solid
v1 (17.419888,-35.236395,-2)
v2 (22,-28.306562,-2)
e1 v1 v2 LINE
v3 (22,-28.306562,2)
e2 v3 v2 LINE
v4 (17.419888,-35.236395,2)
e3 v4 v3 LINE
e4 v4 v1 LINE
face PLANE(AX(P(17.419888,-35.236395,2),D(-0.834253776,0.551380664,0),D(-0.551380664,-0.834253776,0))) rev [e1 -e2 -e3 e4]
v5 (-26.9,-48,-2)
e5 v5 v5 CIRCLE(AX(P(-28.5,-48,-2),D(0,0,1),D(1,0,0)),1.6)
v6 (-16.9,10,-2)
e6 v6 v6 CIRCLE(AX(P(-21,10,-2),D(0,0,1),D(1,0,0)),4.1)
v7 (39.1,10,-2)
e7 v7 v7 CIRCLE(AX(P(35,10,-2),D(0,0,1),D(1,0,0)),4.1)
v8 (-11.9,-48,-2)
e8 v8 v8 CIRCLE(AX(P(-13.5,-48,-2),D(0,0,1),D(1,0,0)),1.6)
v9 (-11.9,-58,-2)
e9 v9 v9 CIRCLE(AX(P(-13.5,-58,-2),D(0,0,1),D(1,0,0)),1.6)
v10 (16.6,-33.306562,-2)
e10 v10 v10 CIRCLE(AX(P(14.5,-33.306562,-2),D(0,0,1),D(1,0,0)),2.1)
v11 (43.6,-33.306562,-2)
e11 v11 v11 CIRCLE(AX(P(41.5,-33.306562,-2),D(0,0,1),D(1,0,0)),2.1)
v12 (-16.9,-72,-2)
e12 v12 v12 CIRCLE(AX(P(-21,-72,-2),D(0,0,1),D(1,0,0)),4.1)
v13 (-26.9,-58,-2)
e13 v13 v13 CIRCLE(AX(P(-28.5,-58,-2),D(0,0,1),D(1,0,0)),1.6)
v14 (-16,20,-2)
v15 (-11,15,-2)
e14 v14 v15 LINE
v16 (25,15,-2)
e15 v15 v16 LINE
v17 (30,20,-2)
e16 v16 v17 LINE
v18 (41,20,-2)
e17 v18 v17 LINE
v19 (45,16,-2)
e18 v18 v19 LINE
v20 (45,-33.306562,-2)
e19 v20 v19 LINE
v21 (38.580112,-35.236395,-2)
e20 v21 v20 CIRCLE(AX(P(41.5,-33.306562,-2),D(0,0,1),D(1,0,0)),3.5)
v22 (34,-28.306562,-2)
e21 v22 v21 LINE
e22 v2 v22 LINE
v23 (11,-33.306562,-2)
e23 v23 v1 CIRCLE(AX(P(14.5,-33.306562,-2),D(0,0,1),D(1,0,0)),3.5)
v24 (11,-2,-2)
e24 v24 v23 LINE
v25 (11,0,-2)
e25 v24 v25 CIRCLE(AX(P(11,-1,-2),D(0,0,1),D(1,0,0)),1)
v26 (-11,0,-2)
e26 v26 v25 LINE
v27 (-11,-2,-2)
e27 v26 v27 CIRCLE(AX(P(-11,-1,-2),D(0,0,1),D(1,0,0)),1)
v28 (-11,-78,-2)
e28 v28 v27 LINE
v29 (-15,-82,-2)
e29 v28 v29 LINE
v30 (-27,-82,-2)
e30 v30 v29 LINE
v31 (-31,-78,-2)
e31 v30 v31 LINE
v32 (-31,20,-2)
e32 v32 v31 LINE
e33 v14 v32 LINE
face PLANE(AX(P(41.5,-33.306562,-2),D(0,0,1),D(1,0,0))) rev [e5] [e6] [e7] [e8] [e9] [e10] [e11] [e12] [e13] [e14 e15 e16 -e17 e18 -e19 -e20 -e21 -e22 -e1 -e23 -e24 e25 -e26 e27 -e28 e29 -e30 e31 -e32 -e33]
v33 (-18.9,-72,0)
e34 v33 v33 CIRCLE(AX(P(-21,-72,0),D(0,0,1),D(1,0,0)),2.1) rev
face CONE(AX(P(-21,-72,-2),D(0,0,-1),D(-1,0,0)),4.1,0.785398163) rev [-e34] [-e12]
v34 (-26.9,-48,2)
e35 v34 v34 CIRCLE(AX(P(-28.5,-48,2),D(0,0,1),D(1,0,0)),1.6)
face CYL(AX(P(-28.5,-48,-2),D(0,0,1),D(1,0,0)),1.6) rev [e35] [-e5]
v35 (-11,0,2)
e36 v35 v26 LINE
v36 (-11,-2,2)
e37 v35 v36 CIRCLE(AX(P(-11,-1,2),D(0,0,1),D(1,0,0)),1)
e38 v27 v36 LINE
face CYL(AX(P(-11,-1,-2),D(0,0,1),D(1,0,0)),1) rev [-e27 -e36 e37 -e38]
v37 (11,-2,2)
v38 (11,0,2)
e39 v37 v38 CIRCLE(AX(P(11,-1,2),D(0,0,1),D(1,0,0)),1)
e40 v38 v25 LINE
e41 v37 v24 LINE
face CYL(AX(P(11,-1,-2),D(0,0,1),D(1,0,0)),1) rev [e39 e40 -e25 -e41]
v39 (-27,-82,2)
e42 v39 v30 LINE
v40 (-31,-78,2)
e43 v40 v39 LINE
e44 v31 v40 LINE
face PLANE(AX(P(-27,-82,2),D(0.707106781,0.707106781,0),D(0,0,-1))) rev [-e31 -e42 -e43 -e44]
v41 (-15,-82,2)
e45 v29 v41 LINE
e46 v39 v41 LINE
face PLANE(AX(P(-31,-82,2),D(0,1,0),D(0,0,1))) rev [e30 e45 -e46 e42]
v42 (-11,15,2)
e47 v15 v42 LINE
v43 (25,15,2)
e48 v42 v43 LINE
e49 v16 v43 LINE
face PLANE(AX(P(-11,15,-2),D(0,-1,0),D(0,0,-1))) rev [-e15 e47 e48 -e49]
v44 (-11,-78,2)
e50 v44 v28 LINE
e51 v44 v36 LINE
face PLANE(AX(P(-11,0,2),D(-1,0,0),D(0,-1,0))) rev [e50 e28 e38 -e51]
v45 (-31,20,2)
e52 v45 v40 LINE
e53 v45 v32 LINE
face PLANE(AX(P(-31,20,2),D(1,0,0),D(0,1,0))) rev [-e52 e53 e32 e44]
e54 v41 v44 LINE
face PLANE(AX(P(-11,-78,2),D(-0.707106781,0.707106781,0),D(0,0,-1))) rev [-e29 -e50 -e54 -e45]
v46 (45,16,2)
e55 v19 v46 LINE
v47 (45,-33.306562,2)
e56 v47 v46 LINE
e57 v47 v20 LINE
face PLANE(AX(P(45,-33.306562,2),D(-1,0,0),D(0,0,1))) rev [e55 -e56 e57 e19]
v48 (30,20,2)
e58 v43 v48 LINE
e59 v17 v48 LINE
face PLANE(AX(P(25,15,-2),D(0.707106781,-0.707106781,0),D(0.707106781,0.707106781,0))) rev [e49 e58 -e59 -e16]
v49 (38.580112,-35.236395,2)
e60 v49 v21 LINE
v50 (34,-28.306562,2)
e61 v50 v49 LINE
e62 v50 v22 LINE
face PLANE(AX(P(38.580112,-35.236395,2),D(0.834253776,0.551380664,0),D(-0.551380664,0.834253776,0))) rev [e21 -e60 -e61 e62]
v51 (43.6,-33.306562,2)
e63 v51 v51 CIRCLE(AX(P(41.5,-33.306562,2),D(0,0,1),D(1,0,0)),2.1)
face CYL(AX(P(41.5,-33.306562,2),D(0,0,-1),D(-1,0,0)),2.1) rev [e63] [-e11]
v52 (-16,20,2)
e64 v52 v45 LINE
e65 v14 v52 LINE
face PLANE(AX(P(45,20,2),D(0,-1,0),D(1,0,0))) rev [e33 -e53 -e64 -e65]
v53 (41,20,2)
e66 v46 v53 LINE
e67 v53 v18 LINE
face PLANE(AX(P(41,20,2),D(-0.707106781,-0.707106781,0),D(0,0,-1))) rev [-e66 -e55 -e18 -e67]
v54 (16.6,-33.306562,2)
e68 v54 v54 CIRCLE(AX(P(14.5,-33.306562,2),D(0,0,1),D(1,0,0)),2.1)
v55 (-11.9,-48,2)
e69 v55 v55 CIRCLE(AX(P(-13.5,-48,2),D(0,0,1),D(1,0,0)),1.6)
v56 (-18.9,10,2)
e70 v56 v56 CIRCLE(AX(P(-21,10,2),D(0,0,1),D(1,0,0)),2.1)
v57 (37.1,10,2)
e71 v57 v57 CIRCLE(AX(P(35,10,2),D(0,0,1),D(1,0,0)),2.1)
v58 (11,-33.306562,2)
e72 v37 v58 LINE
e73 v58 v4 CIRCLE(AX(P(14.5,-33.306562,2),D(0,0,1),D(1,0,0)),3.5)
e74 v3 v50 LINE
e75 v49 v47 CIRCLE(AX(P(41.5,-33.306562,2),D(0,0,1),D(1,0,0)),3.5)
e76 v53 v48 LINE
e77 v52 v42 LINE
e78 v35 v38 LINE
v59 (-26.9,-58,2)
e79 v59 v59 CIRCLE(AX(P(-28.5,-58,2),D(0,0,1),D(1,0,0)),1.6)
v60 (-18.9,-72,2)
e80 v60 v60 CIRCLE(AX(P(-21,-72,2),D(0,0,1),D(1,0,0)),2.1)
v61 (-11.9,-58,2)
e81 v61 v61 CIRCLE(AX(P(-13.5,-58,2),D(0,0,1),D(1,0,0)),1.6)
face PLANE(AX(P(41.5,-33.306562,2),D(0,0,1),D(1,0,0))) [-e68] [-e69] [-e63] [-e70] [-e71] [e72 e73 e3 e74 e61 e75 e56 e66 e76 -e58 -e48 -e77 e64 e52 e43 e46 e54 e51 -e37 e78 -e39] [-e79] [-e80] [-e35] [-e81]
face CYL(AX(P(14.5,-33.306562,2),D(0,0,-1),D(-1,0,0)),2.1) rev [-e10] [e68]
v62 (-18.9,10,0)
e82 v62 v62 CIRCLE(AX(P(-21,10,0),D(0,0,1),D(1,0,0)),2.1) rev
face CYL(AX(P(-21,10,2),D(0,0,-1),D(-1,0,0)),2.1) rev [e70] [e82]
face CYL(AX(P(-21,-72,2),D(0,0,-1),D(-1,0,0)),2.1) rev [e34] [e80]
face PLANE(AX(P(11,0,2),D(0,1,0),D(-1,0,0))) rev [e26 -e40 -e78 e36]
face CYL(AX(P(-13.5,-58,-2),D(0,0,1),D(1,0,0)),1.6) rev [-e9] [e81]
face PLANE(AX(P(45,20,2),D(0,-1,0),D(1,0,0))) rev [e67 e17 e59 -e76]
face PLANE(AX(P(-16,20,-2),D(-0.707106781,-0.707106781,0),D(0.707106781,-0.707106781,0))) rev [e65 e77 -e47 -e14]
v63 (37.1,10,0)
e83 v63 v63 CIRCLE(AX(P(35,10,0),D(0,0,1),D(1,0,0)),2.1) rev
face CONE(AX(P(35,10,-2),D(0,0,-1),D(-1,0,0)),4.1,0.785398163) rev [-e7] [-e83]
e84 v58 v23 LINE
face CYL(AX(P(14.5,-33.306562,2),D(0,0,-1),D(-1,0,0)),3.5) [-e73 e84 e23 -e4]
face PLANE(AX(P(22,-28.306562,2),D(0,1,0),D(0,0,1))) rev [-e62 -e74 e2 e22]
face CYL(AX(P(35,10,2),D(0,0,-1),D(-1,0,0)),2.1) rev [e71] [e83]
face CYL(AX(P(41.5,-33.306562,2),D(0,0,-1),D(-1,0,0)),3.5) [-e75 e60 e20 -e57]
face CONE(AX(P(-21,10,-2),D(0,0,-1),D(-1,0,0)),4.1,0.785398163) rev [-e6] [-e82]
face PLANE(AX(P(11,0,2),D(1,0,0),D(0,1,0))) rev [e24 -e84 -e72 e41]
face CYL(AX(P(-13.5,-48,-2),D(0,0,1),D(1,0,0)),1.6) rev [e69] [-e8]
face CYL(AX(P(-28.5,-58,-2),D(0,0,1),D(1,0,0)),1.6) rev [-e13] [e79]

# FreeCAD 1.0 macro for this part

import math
import FreeCAD as App
import Part
import Sketcher
Q = App.Units.Quantity


def edges_at(feature, points):
    """Names of the edges that pass closest to the given points."""
    edges = feature.Shape.Edges
    near = lambda p: min(range(len(edges)), key=lambda i: edges[i].distToShape(Part.Vertex(*p))[0])
    return sorted({f"Edge{near(p) + 1}" for p in points})

doc = App.newDocument("Part")
params = doc.addObject("Spreadsheet::Sheet", "Params")
for row, (alias, value) in enumerate([
    ("sketch1_diameter", "4.2 mm"),
    ("sketch1_radius", "3.5 mm"),
    ("sketch1_width", "22 mm"),
    ("sketch1_width2", "12 mm"),
    ("sketch1_width3", "76 mm"),
    ("pad1_length", "4 mm"),
    ("sketch2_width", "36 mm"),
    ("sketch2_width2", "46 mm"),
    ("chamfer_size", "2 mm"),
    ("sketch3_diameter", "2 mm"),
    ("chamfer2_size", "4 mm"),
    ("sketch4_diameter", "3.2 mm"),
], start=1):
    params.set(f"A{row}", alias)
    params.set(f"B{row}", "=" + value)
    params.setAlias(f"B{row}", alias)

body = doc.addObject("PartDesign::Body", "Body")

# Sketch on XY plane
sketch1 = body.newObject("Sketcher::SketchObject", "Sketch")
sketch1.AttachmentSupport = (doc.getObject("XY_Plane"), [""])
sketch1.MapMode = "FlatFace"
sketch1.addGeometry(Part.LineSegment(App.Vector(-11, 0, 0), App.Vector(11, 0, 0)), False)
sketch1.addGeometry(Part.LineSegment(App.Vector(11, 0, 0), App.Vector(11, -33.3, 0)), False)
sketch1.addGeometry(Part.ArcOfCircle(Part.Circle(App.Vector(14.5, -33.3, 0), App.Vector(0, 0, 1), 3.5), math.radians(-180), math.radians(-33)), False)
sketch1.addGeometry(Part.LineSegment(App.Vector(17.4, -35.2, 0), App.Vector(22, -28.3, 0)), False)
sketch1.addGeometry(Part.LineSegment(App.Vector(22, -28.3, 0), App.Vector(34, -28.3, 0)), False)
sketch1.addGeometry(Part.LineSegment(App.Vector(34, -28.3, 0), App.Vector(38.6, -35.2, 0)), False)
sketch1.addGeometry(Part.ArcOfCircle(Part.Circle(App.Vector(41.5, -33.3, 0), App.Vector(0, 0, 1), 3.5), math.radians(-147), math.radians(0)), False)
sketch1.addGeometry(Part.LineSegment(App.Vector(45, -33.3, 0), App.Vector(45, 20, 0)), False)
sketch1.addGeometry(Part.LineSegment(App.Vector(45, 20, 0), App.Vector(-31, 20, 0)), False)
sketch1.addGeometry(Part.LineSegment(App.Vector(-31, 20, 0), App.Vector(-31, -82, 0)), False)
sketch1.addGeometry(Part.LineSegment(App.Vector(-31, -82, 0), App.Vector(-11, -82, 0)), False)
sketch1.addGeometry(Part.LineSegment(App.Vector(-11, -82, 0), App.Vector(-11, 0, 0)), False)
sketch1.addGeometry(Part.Circle(App.Vector(41.5, -33.3, 0), App.Vector(0, 0, 1), 2.1), False)
sketch1.addGeometry(Part.Circle(App.Vector(14.5, -33.3, 0), App.Vector(0, 0, 1), 2.1), False)
sketch1.addGeometry(Part.Circle(App.Vector(-21, -72, 0), App.Vector(0, 0, 1), 2.1), False)
sketch1.addGeometry(Part.Circle(App.Vector(35, 10, 0), App.Vector(0, 0, 1), 2.1), False)
sketch1.addGeometry(Part.Circle(App.Vector(-21, 10, 0), App.Vector(0, 0, 1), 2.1), False)
sketch1.addConstraint(Sketcher.Constraint("Coincident", 0, 2, 1, 1))
sketch1.addConstraint(Sketcher.Constraint("Tangent", 1, 2, 2, 1))
sketch1.addConstraint(Sketcher.Constraint("Tangent", 2, 2, 3, 1))
sketch1.addConstraint(Sketcher.Constraint("Coincident", 3, 2, 4, 1))
sketch1.addConstraint(Sketcher.Constraint("Coincident", 4, 2, 5, 1))
sketch1.addConstraint(Sketcher.Constraint("Tangent", 5, 2, 6, 1))
sketch1.addConstraint(Sketcher.Constraint("Tangent", 6, 2, 7, 1))
sketch1.addConstraint(Sketcher.Constraint("Coincident", 7, 2, 8, 1))
sketch1.addConstraint(Sketcher.Constraint("Coincident", 8, 2, 9, 1))
sketch1.addConstraint(Sketcher.Constraint("Coincident", 9, 2, 10, 1))
sketch1.addConstraint(Sketcher.Constraint("Coincident", 10, 2, 11, 1))
sketch1.addConstraint(Sketcher.Constraint("Coincident", 11, 2, 0, 1))
sketch1.addConstraint(Sketcher.Constraint("Horizontal", 0))
sketch1.addConstraint(Sketcher.Constraint("Vertical", 1))
sketch1.addConstraint(Sketcher.Constraint("Horizontal", 4))
sketch1.addConstraint(Sketcher.Constraint("Vertical", 7))
sketch1.addConstraint(Sketcher.Constraint("Horizontal", 8))
sketch1.addConstraint(Sketcher.Constraint("Vertical", 9))
sketch1.addConstraint(Sketcher.Constraint("Horizontal", 10))
sketch1.addConstraint(Sketcher.Constraint("Vertical", 11))
sketch1.addConstraint(Sketcher.Constraint("Coincident", 12, 3, 6, 3))
sketch1.addConstraint(Sketcher.Constraint("Coincident", 13, 3, 2, 3))
sketch1.addConstraint(Sketcher.Constraint("Equal", 2, 6))
sketch1.addConstraint(Sketcher.Constraint("Equal", 12, 13))
sketch1.addConstraint(Sketcher.Constraint("Equal", 13, 14))
sketch1.addConstraint(Sketcher.Constraint("Equal", 14, 15))
sketch1.addConstraint(Sketcher.Constraint("Equal", 15, 16))
sketch1.addConstraint(Sketcher.Constraint("Symmetric", 0, 2, 11, 2, -1, 1))
sketch1.addConstraint(Sketcher.Constraint("Horizontal", 2, 3, 6, 3))
sketch1.addConstraint(Sketcher.Constraint("Horizontal", 15, 3, 16, 3))
sketch1.addConstraint(Sketcher.Constraint("Horizontal", 2, 2, 5, 2))
sketch1.addConstraint(Sketcher.Constraint("Vertical", 14, 3, 16, 3))
sketch1.addConstraint(Sketcher.Constraint("Diameter", 12, Q("4.2 mm")))
sketch1.addConstraint(Sketcher.Constraint("Radius", 2, Q("3.5 mm")))
sketch1.addConstraint(Sketcher.Constraint("DistanceX", 0, 1, 0, 2, Q("22 mm")))
sketch1.addConstraint(Sketcher.Constraint("DistanceX", 4, 1, 4, 2, Q("12 mm")))
sketch1.addConstraint(Sketcher.Constraint("DistanceX", 8, 2, 8, 1, Q("76 mm")))
sketch1.addConstraint(Sketcher.Constraint("DistanceX", 10, 1, 10, 2, Q("20 mm")))
sketch1.addConstraint(Sketcher.Constraint("DistanceY", 9, 2, 9, 1, Q("102 mm")))
sketch1.addConstraint(Sketcher.Constraint("DistanceY", 11, 1, 11, 2, Q("82 mm")))
sketch1.addConstraint(Sketcher.Constraint("DistanceX", 14, 3, -1, 1, Q("21 mm")))
sketch1.addConstraint(Sketcher.Constraint("DistanceY", 14, 3, -1, 1, Q("72 mm")))
sketch1.addConstraint(Sketcher.Constraint("DistanceX", -1, 1, 15, 3, Q("35 mm")))
sketch1.addConstraint(Sketcher.Constraint("DistanceY", -1, 1, 15, 3, Q("10 mm")))
sketch1.addConstraint(Sketcher.Constraint("DistanceY", 2, 3, 3, 2, Q("5 mm")))
sketch1.addConstraint(Sketcher.Constraint("DistanceY", 1, 2, 1, 1, Q("33.306562 mm")))
sketch1.setExpression("Constraints[32]", "Params.sketch1_diameter")
sketch1.setExpression("Constraints[33]", "Params.sketch1_radius")
sketch1.setExpression("Constraints[34]", "Params.sketch1_width")
sketch1.setExpression("Constraints[35]", "Params.sketch1_width2")
sketch1.setExpression("Constraints[36]", "Params.sketch1_width3")
pad1 = body.newObject("PartDesign::Pad", "Pad")
pad1.Profile = sketch1
pad1.setExpression("Length", "Params.pad1_length")
pad1.Midplane = True

# Sketch on XY plane
sketch2 = body.newObject("Sketcher::SketchObject", "Sketch001")
sketch2.AttachmentSupport = (doc.getObject("XY_Plane"), [""])
sketch2.MapMode = "FlatFace"
sketch2.AttachmentOffset = App.Placement(App.Vector(0, 0, 2), App.Rotation())
sketch2.addGeometry(Part.LineSegment(App.Vector(-16, 20, 0), App.Vector(-11, 15, 0)), False)
sketch2.addGeometry(Part.LineSegment(App.Vector(-11, 15, 0), App.Vector(25, 15, 0)), False)
sketch2.addGeometry(Part.LineSegment(App.Vector(25, 15, 0), App.Vector(30, 20, 0)), False)
sketch2.addGeometry(Part.LineSegment(App.Vector(30, 20, 0), App.Vector(-16, 20, 0)), False)
sketch2.addConstraint(Sketcher.Constraint("Coincident", 0, 2, 1, 1))
sketch2.addConstraint(Sketcher.Constraint("Coincident", 1, 2, 2, 1))
sketch2.addConstraint(Sketcher.Constraint("Coincident", 2, 2, 3, 1))
sketch2.addConstraint(Sketcher.Constraint("Coincident", 3, 2, 0, 1))
sketch2.addConstraint(Sketcher.Constraint("Horizontal", 1))
sketch2.addConstraint(Sketcher.Constraint("Horizontal", 3))
sketch2.addConstraint(Sketcher.Constraint("Perpendicular", 0, 2))
sketch2.addConstraint(Sketcher.Constraint("Equal", 0, 2))
sketch2.addConstraint(Sketcher.Constraint("DistanceX", 1, 1, 1, 2, Q("36 mm")))
sketch2.addConstraint(Sketcher.Constraint("DistanceX", 3, 2, 3, 1, Q("46 mm")))
sketch2.addConstraint(Sketcher.Constraint("DistanceX", 0, 2, -1, 1, Q("11 mm")))
sketch2.addConstraint(Sketcher.Constraint("DistanceY", -1, 1, 0, 2, Q("15 mm")))
sketch2.setExpression("Constraints[8]", "Params.sketch2_width")
sketch2.setExpression("Constraints[9]", "Params.sketch2_width2")
pocket1 = body.newObject("PartDesign::Pocket", "Pocket")
pocket1.Profile = sketch2
pocket1.Type = "ThroughAll"
doc.recompute()

chamfer = body.newObject("PartDesign::Chamfer", "Chamfer")
chamfer.Base = (pocket1, edges_at(pocket1, [(-23.1, 10, -2), (32.9, 10, -2), (-23.1, -72, -2)]))
chamfer.setExpression("Size", "Params.chamfer_size")

# Sketch on XY plane
sketch3 = body.newObject("Sketcher::SketchObject", "Sketch002")
sketch3.AttachmentSupport = (doc.getObject("XY_Plane"), [""])
sketch3.MapMode = "FlatFace"
sketch3.AttachmentOffset = App.Placement(App.Vector(0, 0, 2), App.Rotation())
sketch3.addGeometry(Part.Circle(App.Vector(-11, -1, 0), App.Vector(0, 0, 1), 1), False)
sketch3.addGeometry(Part.Circle(App.Vector(11, -1, 0), App.Vector(0, 0, 1), 1), False)
sketch3.addConstraint(Sketcher.Constraint("Equal", 0, 1))
sketch3.addConstraint(Sketcher.Constraint("Symmetric", 0, 3, 1, 3, -2))
sketch3.addConstraint(Sketcher.Constraint("Diameter", 0, Q("2 mm")))
sketch3.addConstraint(Sketcher.Constraint("DistanceX", 0, 3, -1, 1, Q("11 mm")))
sketch3.addConstraint(Sketcher.Constraint("DistanceY", 0, 3, -1, 1, Q("1 mm")))
sketch3.setExpression("Constraints[2]", "Params.sketch3_diameter")
pocket2 = body.newObject("PartDesign::Pocket", "Pocket001")
pocket2.Profile = sketch3
pocket2.Type = "ThroughAll"
doc.recompute()

chamfer2 = body.newObject("PartDesign::Chamfer", "Chamfer001")
chamfer2.Base = (pocket2, edges_at(pocket2, [(-11, -82, 0), (-31, -82, 0), (45, 20, 0)]))
chamfer2.setExpression("Size", "Params.chamfer2_size")

# Sketch on XY plane
sketch4 = body.newObject("Sketcher::SketchObject", "Sketch003")
sketch4.AttachmentSupport = (doc.getObject("XY_Plane"), [""])
sketch4.MapMode = "FlatFace"
sketch4.AttachmentOffset = App.Placement(App.Vector(0, 0, 2), App.Rotation())
sketch4.addGeometry(Part.Circle(App.Vector(-28.5, -48, 0), App.Vector(0, 0, 1), 1.6), False)
sketch4.addGeometry(Part.Circle(App.Vector(-28.5, -58, 0), App.Vector(0, 0, 1), 1.6), False)
sketch4.addGeometry(Part.Circle(App.Vector(-13.5, -48, 0), App.Vector(0, 0, 1), 1.6), False)
sketch4.addGeometry(Part.Circle(App.Vector(-13.5, -58, 0), App.Vector(0, 0, 1), 1.6), False)
sketch4.addConstraint(Sketcher.Constraint("Equal", 0, 1))
sketch4.addConstraint(Sketcher.Constraint("Equal", 1, 2))
sketch4.addConstraint(Sketcher.Constraint("Equal", 2, 3))
sketch4.addConstraint(Sketcher.Constraint("Horizontal", 0, 3, 2, 3))
sketch4.addConstraint(Sketcher.Constraint("Horizontal", 1, 3, 3, 3))
sketch4.addConstraint(Sketcher.Constraint("Vertical", 0, 3, 1, 3))
sketch4.addConstraint(Sketcher.Constraint("Vertical", 2, 3, 3, 3))
sketch4.addConstraint(Sketcher.Constraint("Diameter", 0, Q("3.2 mm")))
sketch4.addConstraint(Sketcher.Constraint("DistanceY", 0, 3, -1, 1, Q("48 mm")))
sketch4.addConstraint(Sketcher.Constraint("DistanceY", 1, 3, -1, 1, Q("58 mm")))
sketch4.addConstraint(Sketcher.Constraint("DistanceX", 0, 3, 2, 3, Q("15 mm")))
sketch4.addConstraint(Sketcher.Constraint("DistanceX", 0, 3, -1, 1, Q("28.5 mm")))
sketch4.setExpression("Constraints[7]", "Params.sketch4_diameter")
pocket3 = body.newObject("PartDesign::Pocket", "Pocket002")
pocket3.Profile = sketch4
pocket3.Type = "ThroughAll"

doc.recompute()
